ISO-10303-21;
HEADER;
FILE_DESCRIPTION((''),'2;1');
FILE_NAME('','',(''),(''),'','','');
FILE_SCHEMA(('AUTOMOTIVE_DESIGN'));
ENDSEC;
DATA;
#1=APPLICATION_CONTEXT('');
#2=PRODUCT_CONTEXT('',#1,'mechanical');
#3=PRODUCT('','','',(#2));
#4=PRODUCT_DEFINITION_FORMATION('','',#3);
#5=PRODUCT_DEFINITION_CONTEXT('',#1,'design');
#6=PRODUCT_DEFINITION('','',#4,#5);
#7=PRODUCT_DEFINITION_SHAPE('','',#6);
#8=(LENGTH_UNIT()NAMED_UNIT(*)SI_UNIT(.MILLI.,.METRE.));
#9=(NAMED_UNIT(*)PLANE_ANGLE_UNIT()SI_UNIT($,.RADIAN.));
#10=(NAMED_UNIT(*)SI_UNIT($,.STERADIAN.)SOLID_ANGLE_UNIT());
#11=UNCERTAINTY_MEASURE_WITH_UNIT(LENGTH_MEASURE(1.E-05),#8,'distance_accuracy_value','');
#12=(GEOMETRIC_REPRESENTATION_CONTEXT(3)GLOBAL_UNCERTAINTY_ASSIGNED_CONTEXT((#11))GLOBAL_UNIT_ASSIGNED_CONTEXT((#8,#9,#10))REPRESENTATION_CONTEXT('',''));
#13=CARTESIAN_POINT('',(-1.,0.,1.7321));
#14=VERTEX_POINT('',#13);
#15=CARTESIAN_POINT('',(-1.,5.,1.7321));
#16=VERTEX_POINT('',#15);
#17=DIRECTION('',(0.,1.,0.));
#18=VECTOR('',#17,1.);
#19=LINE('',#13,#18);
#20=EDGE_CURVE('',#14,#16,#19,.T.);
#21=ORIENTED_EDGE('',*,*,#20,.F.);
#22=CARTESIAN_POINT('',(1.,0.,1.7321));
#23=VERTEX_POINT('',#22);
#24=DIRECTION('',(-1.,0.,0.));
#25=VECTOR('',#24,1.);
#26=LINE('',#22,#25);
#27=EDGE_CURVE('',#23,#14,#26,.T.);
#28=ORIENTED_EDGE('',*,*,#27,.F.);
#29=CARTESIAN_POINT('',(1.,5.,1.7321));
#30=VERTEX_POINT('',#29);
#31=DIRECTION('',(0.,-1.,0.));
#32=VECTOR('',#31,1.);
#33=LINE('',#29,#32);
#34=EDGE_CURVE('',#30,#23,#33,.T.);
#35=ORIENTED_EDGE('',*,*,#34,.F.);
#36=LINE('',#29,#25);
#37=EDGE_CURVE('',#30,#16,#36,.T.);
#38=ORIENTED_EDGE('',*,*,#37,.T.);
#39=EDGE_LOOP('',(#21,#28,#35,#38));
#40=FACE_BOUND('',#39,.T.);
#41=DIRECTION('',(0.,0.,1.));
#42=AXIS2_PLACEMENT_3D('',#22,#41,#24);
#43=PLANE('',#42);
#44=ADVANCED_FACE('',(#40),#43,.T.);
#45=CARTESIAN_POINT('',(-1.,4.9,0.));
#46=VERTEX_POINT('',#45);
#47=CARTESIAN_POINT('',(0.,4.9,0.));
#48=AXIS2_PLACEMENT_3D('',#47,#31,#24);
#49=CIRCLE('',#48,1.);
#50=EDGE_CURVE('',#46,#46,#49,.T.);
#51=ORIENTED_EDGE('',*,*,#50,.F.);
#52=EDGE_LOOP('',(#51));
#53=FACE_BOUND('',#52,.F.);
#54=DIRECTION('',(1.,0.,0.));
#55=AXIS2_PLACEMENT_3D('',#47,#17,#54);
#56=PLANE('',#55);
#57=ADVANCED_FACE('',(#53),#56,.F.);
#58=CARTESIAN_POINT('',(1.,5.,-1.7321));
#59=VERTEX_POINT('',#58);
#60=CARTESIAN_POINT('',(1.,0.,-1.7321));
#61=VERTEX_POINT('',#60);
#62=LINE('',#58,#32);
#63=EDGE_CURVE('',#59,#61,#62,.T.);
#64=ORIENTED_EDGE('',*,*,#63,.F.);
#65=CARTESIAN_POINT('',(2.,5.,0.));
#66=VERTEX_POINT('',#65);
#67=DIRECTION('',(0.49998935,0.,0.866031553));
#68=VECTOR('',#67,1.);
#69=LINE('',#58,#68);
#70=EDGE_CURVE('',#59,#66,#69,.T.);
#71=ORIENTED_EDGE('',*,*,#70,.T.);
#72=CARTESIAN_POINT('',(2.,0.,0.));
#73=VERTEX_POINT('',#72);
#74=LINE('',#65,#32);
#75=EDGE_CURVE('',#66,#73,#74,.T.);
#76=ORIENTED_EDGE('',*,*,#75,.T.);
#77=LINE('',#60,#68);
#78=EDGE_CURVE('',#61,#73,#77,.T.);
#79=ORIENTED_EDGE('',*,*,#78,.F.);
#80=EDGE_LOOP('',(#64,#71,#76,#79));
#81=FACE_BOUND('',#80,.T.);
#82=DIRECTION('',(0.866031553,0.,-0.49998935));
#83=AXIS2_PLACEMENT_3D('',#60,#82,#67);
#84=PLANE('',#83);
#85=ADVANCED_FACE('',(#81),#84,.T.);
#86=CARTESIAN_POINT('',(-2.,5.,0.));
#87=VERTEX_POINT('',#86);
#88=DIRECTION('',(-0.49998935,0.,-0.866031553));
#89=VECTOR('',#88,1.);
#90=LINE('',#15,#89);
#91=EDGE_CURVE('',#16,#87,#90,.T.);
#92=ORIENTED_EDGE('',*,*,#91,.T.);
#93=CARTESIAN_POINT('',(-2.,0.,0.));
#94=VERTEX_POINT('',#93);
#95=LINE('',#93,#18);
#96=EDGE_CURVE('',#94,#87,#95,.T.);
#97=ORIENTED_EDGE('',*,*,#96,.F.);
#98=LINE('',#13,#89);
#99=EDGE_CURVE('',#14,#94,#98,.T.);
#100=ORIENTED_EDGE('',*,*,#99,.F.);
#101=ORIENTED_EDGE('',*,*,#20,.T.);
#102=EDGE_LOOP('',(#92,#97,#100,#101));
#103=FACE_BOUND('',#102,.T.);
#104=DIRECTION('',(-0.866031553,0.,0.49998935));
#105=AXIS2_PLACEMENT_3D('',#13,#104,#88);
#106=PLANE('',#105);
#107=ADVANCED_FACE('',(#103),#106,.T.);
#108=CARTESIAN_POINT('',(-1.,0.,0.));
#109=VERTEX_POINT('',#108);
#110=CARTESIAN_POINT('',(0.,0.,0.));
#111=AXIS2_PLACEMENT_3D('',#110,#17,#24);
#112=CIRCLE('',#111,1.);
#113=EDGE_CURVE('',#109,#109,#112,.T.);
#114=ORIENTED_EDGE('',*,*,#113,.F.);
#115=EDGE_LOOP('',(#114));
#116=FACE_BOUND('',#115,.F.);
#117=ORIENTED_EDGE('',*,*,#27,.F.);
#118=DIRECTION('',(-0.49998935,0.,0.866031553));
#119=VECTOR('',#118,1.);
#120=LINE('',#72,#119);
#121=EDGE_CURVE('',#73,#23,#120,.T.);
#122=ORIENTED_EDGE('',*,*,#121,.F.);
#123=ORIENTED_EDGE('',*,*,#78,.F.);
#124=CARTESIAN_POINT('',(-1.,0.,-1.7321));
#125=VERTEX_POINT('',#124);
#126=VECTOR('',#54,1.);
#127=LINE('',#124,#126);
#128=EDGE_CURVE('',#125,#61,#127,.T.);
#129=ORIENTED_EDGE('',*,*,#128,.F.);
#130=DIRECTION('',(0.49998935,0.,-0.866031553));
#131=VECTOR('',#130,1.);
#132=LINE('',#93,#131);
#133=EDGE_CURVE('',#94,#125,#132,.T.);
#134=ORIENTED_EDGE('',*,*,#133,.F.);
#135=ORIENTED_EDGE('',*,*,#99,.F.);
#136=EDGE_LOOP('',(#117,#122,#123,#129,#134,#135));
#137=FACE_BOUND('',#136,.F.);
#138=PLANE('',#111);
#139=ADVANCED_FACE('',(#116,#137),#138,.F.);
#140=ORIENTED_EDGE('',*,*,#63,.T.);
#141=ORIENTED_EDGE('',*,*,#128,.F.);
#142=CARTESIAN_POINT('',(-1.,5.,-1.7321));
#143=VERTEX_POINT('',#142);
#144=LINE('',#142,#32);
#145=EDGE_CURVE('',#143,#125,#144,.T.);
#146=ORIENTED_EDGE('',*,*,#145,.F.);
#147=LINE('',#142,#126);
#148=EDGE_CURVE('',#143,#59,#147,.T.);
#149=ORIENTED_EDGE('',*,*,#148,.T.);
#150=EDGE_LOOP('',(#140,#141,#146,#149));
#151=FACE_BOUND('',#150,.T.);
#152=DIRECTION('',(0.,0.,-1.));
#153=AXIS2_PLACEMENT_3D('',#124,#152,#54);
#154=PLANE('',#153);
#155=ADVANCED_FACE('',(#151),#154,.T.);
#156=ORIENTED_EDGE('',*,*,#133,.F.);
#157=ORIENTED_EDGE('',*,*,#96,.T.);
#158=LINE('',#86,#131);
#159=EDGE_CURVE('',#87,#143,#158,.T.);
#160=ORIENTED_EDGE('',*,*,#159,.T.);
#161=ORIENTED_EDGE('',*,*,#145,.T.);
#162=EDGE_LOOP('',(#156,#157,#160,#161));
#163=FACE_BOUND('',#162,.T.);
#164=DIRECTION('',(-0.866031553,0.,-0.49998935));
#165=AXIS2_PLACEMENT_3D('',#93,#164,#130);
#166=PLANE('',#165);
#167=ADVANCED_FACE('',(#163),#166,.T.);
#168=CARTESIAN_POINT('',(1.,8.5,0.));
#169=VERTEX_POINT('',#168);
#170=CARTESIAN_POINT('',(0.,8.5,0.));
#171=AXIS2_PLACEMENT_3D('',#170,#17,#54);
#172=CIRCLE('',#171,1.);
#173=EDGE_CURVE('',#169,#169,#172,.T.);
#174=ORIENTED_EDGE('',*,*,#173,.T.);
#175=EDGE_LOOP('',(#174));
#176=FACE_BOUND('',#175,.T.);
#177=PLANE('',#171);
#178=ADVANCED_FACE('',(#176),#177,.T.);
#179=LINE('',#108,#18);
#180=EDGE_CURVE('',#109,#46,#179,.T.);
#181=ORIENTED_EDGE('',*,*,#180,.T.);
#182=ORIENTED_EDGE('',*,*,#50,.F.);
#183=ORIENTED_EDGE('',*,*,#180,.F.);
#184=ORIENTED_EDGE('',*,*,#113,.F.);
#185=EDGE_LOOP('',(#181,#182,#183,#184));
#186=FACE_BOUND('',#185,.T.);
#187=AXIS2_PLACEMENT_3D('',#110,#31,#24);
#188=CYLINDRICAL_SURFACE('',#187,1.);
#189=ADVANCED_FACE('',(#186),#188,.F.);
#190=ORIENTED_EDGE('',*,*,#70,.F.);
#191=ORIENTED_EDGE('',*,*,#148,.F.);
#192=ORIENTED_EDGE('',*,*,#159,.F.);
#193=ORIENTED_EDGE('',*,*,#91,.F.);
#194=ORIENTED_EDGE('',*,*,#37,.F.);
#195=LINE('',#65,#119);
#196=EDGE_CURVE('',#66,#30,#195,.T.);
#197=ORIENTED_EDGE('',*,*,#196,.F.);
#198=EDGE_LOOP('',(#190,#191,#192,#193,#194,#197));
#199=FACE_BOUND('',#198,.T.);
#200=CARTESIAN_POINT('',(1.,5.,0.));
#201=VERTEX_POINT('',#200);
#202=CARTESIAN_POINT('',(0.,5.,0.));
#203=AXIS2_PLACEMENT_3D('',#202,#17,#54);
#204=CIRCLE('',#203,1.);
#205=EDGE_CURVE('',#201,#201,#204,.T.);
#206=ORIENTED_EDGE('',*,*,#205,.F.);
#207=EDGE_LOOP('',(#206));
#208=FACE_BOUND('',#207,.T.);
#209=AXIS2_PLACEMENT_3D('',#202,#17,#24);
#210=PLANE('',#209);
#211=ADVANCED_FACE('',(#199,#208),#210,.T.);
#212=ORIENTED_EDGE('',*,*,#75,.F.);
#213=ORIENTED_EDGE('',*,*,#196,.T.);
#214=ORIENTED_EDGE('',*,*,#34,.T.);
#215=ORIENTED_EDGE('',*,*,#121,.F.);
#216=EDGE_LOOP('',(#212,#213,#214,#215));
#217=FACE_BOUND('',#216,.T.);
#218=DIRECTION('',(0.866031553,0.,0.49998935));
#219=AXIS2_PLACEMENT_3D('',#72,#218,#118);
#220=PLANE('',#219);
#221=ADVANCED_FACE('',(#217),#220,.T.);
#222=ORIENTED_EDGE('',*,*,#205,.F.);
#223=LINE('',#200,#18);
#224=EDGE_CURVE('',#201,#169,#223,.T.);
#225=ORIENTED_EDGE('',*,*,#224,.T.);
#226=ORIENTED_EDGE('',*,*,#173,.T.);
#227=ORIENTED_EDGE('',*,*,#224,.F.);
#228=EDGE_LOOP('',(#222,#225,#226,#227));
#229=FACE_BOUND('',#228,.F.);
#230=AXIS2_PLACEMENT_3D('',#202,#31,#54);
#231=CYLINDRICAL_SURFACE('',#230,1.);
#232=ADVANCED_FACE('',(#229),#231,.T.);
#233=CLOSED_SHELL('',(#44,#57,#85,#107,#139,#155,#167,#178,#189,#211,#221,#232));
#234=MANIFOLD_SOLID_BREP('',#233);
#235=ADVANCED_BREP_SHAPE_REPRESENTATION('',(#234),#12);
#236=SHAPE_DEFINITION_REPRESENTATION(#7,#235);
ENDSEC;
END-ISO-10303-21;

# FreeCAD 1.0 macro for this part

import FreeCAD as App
import Part
import Sketcher
Q = App.Units.Quantity


def add_polygon(sketch, points):
    """Adds a closed chain of lines whose ends are joined by coincident constraints."""
    first, n = sketch.GeometryCount, len(points)
    for a, b in zip(points, points[1:] + points[:1]):
        sketch.addGeometry(Part.LineSegment(App.Vector(*a, 0), App.Vector(*b, 0)), False)
    for i in range(n):
        sketch.addConstraint(Sketcher.Constraint("Coincident", first + i, 2, first + (i + 1) % n, 1))

doc = App.newDocument("Part")
body = doc.addObject("PartDesign::Body", "Body")

# Sketch on XZ plane
sketch1 = body.newObject("Sketcher::SketchObject", "Sketch")
sketch1.AttachmentSupport = (doc.getObject("XZ_Plane"), [""])
sketch1.MapMode = "FlatFace"
add_polygon(sketch1, [(-1, -1.7), (-2, 0), (-1, 1.7), (1, 1.7), (2, 0), (1, -1.7)])  # lines 0-5
sketch1.addGeometry(Part.Circle(App.Vector(0, 0, 0), App.Vector(0, 0, 1), 1), False)  # 6
sketch1.addConstraint([
    Sketcher.Constraint("Horizontal", 2),
    Sketcher.Constraint("Horizontal", 5),
    Sketcher.Constraint("Coincident", 6, 3, -1, 1),
    Sketcher.Constraint("Symmetric", 0, 2, 3, 2, -1, 1),
    Sketcher.Constraint("Symmetric", 1, 2, 4, 2, -1, 1),
    Sketcher.Constraint("PointOnObject", 0, 2, -1),
    Sketcher.Constraint("Parallel", 0, 3),
    Sketcher.Constraint("Vertical", 2, 2, 4, 2),
    Sketcher.Constraint("Diameter", 6, 2.0),
    Sketcher.Constraint("DistanceX", 2, 1, 2, 2, 2.0),
    Sketcher.Constraint("Angle", 0, Q("119.9993 deg")),
    Sketcher.Constraint("Distance", 0, 2.0),
])
pad1 = body.newObject("PartDesign::Pad", "Pad")
pad1.Profile = sketch1
pad1.Length = 5
pad1.Reversed = True

# Sketch on XZ plane
sketch2 = body.newObject("Sketcher::SketchObject", "Sketch001")
sketch2.AttachmentSupport = (doc.getObject("XZ_Plane"), [""])
sketch2.MapMode = "FlatFace"
sketch2.AttachmentOffset = App.Placement(App.Vector(0, 0, -5), App.Rotation())
add_polygon(sketch2, [(-1, -1.7), (-2, 0), (-1, 1.7), (1, 1.7), (2, 0), (1, -1.7)])  # lines 0-5
sketch2.addConstraint([
    Sketcher.Constraint("Horizontal", 2),
    Sketcher.Constraint("Horizontal", 5),
    Sketcher.Constraint("Symmetric", 0, 2, 3, 2, -1, 1),
    Sketcher.Constraint("Symmetric", 1, 2, 4, 2, -1, 1),
    Sketcher.Constraint("PointOnObject", 0, 2, -1),
    Sketcher.Constraint("Parallel", 0, 3),
    Sketcher.Constraint("Vertical", 2, 2, 4, 2),
    Sketcher.Constraint("DistanceX", 2, 1, 2, 2, 2.0),
    Sketcher.Constraint("Angle", 0, Q("119.9993 deg")),
    Sketcher.Constraint("Distance", 0, 2.0),
])
pad2 = body.newObject("PartDesign::Pad", "Pad001")
pad2.Profile = sketch2
pad2.Length = 0.1

# Sketch on XZ plane
sketch3 = body.newObject("Sketcher::SketchObject", "Sketch002")
sketch3.AttachmentSupport = (doc.getObject("XZ_Plane"), [""])
sketch3.MapMode = "FlatFace"
sketch3.AttachmentOffset = App.Placement(App.Vector(0, 0, -5), App.Rotation())
sketch3.addGeometry(Part.Circle(App.Vector(0, 0, 0), App.Vector(0, 0, 1), 1), False)
sketch3.addConstraint([
    Sketcher.Constraint("Coincident", 0, 3, -1, 1),
    Sketcher.Constraint("Diameter", 0, 2.0),
])
pad3 = body.newObject("PartDesign::Pad", "Pad002")
pad3.Profile = sketch3
pad3.Length = 3.5
pad3.Reversed = True

doc.recompute()
